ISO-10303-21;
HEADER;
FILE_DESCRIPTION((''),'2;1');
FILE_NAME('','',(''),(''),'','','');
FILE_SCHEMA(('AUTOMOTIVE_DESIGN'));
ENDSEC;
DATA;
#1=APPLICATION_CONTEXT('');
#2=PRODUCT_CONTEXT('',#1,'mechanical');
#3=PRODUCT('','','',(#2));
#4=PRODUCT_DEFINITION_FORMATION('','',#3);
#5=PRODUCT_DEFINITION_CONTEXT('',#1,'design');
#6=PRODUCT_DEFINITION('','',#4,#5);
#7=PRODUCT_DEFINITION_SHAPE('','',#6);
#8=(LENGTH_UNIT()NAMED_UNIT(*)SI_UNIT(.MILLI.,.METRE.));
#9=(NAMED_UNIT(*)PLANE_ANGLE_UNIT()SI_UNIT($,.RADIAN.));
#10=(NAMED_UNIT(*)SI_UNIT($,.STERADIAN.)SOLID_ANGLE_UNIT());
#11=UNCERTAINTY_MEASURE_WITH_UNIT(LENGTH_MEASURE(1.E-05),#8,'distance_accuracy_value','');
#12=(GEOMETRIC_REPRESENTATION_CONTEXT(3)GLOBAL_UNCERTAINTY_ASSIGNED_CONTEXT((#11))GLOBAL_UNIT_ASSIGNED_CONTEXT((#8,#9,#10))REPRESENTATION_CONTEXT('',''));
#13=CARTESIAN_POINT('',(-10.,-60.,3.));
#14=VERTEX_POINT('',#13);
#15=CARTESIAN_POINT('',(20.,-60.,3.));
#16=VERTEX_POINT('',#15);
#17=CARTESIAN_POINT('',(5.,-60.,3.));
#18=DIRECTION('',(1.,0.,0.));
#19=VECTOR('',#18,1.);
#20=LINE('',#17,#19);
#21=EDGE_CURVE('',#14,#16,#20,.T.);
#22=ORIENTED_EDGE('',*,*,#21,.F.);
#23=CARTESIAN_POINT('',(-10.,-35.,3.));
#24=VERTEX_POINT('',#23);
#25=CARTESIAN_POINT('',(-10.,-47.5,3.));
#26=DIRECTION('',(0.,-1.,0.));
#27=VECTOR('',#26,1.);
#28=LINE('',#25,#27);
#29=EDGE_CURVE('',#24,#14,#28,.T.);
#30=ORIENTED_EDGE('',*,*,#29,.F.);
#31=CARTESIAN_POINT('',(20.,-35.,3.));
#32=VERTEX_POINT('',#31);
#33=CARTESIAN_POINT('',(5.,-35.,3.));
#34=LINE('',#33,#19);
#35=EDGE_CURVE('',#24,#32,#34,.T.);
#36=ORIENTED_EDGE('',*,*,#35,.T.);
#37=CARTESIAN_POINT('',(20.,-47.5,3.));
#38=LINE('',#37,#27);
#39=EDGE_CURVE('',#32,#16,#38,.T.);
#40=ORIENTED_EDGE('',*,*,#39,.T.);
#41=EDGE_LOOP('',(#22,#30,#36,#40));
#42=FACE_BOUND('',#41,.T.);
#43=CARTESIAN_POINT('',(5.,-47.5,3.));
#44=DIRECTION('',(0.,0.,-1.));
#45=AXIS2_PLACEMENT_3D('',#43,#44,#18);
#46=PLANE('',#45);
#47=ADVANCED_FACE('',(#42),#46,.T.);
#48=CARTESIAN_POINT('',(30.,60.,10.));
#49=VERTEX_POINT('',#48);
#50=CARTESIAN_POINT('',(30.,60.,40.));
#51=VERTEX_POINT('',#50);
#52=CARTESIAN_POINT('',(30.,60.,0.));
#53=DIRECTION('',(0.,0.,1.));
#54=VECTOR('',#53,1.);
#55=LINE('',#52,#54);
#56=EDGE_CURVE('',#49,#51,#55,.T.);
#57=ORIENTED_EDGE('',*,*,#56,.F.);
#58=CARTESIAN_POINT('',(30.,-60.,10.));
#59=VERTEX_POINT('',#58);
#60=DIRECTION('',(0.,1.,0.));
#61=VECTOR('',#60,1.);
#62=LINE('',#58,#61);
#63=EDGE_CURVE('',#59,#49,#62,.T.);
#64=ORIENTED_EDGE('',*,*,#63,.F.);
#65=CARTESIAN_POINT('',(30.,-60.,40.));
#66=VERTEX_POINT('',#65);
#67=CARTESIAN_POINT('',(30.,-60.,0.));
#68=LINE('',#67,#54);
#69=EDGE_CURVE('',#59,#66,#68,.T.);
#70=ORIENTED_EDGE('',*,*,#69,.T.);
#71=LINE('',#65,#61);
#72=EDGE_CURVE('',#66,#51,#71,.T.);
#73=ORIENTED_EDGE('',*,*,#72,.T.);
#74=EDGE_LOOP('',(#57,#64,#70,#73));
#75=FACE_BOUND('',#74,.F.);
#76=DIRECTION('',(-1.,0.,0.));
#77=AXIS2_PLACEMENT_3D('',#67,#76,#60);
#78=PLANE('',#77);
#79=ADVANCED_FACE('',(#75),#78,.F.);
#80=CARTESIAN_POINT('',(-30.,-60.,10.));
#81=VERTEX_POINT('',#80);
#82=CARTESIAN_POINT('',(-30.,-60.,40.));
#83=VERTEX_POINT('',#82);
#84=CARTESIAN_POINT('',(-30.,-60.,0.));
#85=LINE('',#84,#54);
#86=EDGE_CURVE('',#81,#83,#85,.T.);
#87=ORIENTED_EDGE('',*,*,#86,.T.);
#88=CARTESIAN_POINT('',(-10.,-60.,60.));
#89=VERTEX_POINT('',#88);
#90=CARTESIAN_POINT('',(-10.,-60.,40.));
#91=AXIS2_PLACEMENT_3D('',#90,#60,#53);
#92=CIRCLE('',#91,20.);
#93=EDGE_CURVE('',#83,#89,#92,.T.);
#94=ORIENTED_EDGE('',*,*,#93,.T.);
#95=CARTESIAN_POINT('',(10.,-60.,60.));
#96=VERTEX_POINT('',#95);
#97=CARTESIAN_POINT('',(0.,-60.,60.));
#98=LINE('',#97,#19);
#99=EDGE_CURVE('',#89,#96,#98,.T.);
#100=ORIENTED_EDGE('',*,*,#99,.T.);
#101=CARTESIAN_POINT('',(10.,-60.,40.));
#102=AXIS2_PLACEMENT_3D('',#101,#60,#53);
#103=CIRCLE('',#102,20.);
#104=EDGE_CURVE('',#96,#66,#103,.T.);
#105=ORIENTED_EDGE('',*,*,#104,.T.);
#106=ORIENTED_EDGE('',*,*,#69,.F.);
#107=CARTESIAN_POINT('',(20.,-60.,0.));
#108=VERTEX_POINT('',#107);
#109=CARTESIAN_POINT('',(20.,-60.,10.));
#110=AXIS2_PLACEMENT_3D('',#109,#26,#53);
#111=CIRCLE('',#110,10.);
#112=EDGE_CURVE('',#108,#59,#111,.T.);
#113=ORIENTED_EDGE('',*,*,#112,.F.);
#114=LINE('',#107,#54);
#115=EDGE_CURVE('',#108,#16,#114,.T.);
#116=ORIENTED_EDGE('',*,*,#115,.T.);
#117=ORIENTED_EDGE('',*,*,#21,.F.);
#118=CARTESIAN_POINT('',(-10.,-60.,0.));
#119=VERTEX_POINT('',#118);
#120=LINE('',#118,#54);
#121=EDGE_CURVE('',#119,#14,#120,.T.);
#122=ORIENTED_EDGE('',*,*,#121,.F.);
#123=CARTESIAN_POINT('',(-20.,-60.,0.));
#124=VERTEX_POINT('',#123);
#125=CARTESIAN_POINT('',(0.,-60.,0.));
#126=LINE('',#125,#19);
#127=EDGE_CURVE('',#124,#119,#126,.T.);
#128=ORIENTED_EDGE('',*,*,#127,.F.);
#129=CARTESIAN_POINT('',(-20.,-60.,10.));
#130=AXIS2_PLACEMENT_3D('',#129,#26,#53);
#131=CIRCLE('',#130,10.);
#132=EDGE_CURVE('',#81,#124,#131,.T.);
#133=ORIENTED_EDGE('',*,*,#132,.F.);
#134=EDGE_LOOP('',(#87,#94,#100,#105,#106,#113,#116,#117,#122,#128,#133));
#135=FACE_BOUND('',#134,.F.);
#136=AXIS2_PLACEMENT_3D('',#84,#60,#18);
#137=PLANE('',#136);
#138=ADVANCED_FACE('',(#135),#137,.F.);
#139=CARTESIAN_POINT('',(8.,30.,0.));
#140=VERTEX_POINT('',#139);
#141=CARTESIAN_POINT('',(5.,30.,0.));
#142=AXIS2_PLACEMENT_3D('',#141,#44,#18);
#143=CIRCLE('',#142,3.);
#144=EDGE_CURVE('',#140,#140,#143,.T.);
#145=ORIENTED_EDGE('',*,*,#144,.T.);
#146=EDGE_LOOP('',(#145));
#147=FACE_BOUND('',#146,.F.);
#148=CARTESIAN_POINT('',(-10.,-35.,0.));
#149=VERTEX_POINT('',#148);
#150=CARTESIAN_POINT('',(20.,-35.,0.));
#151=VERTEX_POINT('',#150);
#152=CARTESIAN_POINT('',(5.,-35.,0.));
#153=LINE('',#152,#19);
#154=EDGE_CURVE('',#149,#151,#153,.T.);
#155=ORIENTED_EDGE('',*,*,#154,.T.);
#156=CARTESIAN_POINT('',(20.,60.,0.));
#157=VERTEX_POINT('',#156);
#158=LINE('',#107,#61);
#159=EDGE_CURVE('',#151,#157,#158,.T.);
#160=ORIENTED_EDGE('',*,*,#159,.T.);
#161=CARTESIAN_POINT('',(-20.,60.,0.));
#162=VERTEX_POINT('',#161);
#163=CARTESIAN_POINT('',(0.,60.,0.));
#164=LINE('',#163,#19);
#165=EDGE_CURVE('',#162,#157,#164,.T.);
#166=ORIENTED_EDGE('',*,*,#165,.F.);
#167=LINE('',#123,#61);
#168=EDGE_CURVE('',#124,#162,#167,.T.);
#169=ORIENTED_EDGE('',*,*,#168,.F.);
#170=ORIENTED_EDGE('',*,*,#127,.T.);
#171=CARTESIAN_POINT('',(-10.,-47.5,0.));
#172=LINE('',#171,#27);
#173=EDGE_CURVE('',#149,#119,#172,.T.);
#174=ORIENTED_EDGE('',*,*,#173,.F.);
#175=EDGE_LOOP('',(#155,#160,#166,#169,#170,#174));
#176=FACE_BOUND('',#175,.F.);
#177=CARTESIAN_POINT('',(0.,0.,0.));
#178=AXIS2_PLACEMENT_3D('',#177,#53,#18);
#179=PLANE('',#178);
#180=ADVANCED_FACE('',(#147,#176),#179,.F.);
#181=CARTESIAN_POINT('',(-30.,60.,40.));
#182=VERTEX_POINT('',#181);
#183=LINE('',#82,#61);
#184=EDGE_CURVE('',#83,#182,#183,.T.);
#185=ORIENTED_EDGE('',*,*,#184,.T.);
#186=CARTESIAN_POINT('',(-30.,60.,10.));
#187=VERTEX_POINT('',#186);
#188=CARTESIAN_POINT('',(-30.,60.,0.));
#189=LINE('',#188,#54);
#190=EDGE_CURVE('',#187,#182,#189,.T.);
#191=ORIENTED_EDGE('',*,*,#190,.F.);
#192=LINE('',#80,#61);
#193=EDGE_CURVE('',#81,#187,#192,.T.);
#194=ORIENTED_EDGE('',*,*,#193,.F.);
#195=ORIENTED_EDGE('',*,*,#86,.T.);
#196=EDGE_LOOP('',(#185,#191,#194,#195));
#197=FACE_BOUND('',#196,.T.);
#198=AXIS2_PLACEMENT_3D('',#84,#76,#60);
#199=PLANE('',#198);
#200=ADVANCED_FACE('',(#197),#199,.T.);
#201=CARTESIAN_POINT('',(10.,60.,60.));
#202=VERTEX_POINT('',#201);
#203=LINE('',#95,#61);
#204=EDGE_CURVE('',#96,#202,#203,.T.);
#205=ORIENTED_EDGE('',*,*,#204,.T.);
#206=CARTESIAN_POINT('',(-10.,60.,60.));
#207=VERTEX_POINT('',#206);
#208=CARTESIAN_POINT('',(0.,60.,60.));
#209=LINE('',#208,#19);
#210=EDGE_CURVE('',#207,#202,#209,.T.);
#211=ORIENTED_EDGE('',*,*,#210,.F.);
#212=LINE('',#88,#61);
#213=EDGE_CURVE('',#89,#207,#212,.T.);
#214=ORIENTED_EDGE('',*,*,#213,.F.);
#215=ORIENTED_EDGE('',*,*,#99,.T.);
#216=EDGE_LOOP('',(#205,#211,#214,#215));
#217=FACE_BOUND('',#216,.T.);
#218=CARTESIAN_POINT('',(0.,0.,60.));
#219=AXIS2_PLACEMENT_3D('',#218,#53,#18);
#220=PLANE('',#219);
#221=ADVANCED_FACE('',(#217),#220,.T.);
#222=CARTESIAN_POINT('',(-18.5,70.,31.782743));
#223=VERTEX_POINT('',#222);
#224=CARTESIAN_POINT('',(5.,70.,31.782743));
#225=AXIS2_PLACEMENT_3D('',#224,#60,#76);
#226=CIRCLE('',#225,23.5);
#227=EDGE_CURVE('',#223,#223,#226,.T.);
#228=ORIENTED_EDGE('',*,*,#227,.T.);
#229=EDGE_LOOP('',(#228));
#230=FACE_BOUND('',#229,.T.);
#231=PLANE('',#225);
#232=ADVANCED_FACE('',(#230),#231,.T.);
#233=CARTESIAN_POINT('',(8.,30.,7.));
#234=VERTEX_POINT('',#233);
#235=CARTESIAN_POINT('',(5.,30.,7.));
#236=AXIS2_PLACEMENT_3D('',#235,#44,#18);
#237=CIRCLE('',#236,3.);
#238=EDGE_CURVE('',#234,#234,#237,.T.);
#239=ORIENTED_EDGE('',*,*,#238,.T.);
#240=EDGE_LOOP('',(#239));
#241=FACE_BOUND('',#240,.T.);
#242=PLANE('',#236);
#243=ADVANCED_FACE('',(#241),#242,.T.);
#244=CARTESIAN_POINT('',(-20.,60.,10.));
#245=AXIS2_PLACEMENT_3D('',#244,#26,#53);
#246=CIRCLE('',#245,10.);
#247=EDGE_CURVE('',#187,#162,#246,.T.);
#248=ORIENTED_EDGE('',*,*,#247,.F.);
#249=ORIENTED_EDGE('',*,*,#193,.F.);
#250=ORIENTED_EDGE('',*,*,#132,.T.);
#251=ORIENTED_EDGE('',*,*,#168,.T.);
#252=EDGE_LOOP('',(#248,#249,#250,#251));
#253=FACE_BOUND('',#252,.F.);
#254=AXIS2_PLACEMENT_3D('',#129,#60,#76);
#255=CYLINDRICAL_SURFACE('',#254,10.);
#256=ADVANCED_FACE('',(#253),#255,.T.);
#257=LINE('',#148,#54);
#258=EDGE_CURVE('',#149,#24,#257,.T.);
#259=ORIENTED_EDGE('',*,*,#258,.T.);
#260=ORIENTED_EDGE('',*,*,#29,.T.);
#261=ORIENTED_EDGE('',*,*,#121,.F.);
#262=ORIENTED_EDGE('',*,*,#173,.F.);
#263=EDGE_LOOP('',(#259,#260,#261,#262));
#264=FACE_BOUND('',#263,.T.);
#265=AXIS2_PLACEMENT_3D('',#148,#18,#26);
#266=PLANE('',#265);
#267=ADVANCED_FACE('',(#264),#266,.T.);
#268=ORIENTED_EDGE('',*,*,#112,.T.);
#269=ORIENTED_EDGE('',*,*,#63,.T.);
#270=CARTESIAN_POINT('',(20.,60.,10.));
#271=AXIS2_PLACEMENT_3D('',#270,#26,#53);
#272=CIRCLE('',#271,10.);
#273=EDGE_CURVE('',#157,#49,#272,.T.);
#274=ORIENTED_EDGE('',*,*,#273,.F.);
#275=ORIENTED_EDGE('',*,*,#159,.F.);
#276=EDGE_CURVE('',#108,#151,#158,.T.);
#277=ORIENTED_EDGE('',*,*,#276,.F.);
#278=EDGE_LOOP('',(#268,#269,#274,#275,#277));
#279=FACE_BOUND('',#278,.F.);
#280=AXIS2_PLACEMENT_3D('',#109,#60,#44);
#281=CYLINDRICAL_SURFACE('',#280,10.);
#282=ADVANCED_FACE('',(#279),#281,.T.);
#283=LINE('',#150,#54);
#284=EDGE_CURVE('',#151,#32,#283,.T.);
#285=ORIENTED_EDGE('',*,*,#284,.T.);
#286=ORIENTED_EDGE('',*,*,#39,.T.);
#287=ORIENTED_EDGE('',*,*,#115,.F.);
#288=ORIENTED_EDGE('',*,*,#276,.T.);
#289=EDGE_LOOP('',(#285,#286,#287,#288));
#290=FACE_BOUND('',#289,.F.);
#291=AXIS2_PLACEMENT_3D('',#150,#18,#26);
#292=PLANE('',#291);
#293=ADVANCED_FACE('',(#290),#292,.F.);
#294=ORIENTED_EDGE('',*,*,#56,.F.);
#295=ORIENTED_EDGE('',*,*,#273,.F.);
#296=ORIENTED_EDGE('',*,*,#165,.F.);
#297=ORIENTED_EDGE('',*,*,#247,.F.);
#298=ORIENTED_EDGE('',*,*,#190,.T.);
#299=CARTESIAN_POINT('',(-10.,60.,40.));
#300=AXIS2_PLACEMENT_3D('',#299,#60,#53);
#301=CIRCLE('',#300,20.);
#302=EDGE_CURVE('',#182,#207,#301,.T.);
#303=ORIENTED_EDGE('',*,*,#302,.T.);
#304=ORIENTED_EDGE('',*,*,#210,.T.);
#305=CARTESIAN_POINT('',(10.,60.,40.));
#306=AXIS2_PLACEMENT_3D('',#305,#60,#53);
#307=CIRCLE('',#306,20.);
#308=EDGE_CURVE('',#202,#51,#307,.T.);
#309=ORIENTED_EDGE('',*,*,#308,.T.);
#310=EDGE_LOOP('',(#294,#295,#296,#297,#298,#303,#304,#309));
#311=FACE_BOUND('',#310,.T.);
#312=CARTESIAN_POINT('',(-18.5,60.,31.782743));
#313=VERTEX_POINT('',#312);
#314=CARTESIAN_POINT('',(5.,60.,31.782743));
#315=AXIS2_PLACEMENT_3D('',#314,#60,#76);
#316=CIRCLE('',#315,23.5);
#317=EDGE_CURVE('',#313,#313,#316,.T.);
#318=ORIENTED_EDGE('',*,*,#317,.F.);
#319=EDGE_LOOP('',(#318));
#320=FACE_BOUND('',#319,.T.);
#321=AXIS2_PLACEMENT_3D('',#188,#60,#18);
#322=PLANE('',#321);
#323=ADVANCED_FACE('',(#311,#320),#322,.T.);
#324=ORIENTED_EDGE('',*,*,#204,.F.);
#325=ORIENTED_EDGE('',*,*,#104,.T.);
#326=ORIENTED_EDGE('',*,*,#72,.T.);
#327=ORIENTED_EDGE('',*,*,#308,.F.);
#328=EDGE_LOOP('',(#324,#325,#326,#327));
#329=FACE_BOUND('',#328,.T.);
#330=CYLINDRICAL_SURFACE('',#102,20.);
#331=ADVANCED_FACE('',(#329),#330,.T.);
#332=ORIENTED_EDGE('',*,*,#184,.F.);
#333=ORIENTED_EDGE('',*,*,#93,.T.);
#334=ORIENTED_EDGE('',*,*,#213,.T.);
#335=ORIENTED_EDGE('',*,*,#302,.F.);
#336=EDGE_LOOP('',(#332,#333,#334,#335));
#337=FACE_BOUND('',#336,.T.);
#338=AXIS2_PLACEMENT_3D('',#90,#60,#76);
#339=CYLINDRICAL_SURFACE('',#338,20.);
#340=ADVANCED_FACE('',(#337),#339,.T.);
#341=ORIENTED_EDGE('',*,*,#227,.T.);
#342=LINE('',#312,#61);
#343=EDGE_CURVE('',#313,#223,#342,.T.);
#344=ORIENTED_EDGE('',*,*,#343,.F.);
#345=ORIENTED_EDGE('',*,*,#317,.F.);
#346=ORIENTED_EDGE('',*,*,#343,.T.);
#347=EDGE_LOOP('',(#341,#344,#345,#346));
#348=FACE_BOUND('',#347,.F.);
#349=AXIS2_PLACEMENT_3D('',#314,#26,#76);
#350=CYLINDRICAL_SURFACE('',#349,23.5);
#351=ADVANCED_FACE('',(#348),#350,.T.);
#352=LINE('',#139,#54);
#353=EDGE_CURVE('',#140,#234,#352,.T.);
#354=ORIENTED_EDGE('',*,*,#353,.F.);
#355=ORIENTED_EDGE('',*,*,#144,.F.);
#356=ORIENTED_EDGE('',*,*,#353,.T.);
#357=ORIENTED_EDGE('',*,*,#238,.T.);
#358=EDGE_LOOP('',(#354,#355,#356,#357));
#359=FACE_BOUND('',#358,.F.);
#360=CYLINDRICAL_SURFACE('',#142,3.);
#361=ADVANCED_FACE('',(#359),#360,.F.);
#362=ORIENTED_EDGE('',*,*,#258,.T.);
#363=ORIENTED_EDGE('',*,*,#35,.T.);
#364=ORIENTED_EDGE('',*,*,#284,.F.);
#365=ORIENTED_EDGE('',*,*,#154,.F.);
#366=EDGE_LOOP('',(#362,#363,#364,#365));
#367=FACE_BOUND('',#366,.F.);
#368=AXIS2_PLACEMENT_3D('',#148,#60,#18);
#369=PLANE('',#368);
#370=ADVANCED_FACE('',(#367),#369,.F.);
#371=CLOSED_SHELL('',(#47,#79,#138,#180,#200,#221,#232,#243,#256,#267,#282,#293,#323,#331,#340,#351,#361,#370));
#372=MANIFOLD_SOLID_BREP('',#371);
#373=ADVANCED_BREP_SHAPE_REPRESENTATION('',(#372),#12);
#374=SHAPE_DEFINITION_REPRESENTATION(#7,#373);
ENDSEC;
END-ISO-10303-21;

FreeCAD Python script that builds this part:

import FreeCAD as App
import Part
import Sketcher
from FreeCAD import Vector


def edges_at(feature, points):
    """Names of the edges that pass closest to the given points."""
    edges = feature.Shape.Edges
    near = lambda p: min(range(len(edges)), key=lambda i: edges[i].distToShape(Part.Vertex(*p))[0])
    return sorted({f"Edge{near(p) + 1}" for p in points})

doc = App.newDocument("Part")
params = doc.addObject("Spreadsheet::Sheet", "Params")
for row, (alias, value) in enumerate([
    ("sketch1_width", "60 mm"),
    ("sketch1_height", "120 mm"),
    ("pad1_length", "60 mm"),
    ("sketch2_diameter", "6 mm"),
    ("pocket1_length", "7 mm"),
    ("fillet_radius", "20 mm"),
    ("fillet2_radius", "10 mm"),
    ("sketch3_diameter", "47 mm"),
    ("pad2_length", "10 mm"),
    ("sketch4_width", "30 mm"),
    ("sketch4_height", "25 mm"),
    ("pocket2_length", "3 mm"),
], start=1):
    params.set(f"A{row}", alias)
    params.set(f"B{row}", "=" + value)
    params.setAlias(f"B{row}", alias)

body = doc.addObject("PartDesign::Body", "Body")

# Sketch on XY plane
sketch1 = body.newObject("Sketcher::SketchObject", "Sketch")
sketch1.AttachmentSupport = (doc.getObject("XY_Plane"), [""])
sketch1.MapMode = "FlatFace"
sketch1.addGeometry([
    Part.LineSegment(Vector(-30, 60, 0), Vector(-30, -60, 0)),
    Part.LineSegment(Vector(-30, -60, 0), Vector(30, -60, 0)),
    Part.LineSegment(Vector(30, -60, 0), Vector(30, 60, 0)),
    Part.LineSegment(Vector(30, 60, 0), Vector(-30, 60, 0)),
], False)
sketch1.addConstraint([
    Sketcher.Constraint("Coincident", 0, 2, 1, 1),
    Sketcher.Constraint("Coincident", 1, 2, 2, 1),
    Sketcher.Constraint("Coincident", 2, 2, 3, 1),
    Sketcher.Constraint("Coincident", 3, 2, 0, 1),
    Sketcher.Constraint("Vertical", 0),
    Sketcher.Constraint("Horizontal", 1),
    Sketcher.Constraint("Vertical", 2),
    Sketcher.Constraint("Horizontal", 3),
    Sketcher.Constraint("Symmetric", 0, 2, 2, 2, -1, 1),
    Sketcher.Constraint("DistanceX", 1, 1, 1, 2, 60.0),
    Sketcher.Constraint("DistanceY", 0, 2, 0, 1, 120.0),
])
sketch1.setExpression("Constraints[9]", "Params.sketch1_width")
sketch1.setExpression("Constraints[10]", "Params.sketch1_height")
pad1 = body.newObject("PartDesign::Pad", "Pad")
pad1.Profile = sketch1
pad1.setExpression("Length", "Params.pad1_length")

# Sketch on XY plane
sketch2 = body.newObject("Sketcher::SketchObject", "Sketch001")
sketch2.AttachmentSupport = (doc.getObject("XY_Plane"), [""])
sketch2.MapMode = "FlatFace"
sketch2.addGeometry(Part.Circle(Vector(5, 30, 0), Vector(0, 0, 1), 3), False)
sketch2.addConstraint([
    Sketcher.Constraint("Diameter", 0, 6.0),
    Sketcher.Constraint("DistanceX", -1, 1, 0, 3, 5.0),
    Sketcher.Constraint("DistanceY", -1, 1, 0, 3, 30.0),
])
sketch2.setExpression("Constraints[0]", "Params.sketch2_diameter")
pocket1 = body.newObject("PartDesign::Pocket", "Pocket")
pocket1.Profile = sketch2
pocket1.setExpression("Length", "Params.pocket1_length")
pocket1.Reversed = True
doc.recompute()

fillet = body.newObject("PartDesign::Fillet", "Fillet")
fillet.Base = (pocket1, edges_at(pocket1, [(30, 0, 60), (-30, 0, 60)]))
fillet.setExpression("Radius", "Params.fillet_radius")
doc.recompute()

fillet2 = body.newObject("PartDesign::Fillet", "Fillet001")
fillet2.Base = (fillet, edges_at(fillet, [(30, 0, 0), (-30, 0, 0)]))
fillet2.setExpression("Radius", "Params.fillet2_radius")

# Sketch on XZ plane
sketch3 = body.newObject("Sketcher::SketchObject", "Sketch002")
sketch3.AttachmentSupport = (doc.getObject("XZ_Plane"), [""])
sketch3.MapMode = "FlatFace"
sketch3.AttachmentOffset = App.Placement(Vector(0, 0, -60), App.Rotation())
sketch3.addGeometry(Part.Circle(Vector(5, 32, 0), Vector(0, 0, 1), 24), False)
sketch3.addConstraint([
    Sketcher.Constraint("Diameter", 0, 47.0),
    Sketcher.Constraint("DistanceX", -1, 1, 0, 3, 5.0),
    Sketcher.Constraint("DistanceY", -1, 1, 0, 3, 31.782743),
])
sketch3.setExpression("Constraints[0]", "Params.sketch3_diameter")
pad2 = body.newObject("PartDesign::Pad", "Pad001")
pad2.Profile = sketch3
pad2.setExpression("Length", "Params.pad2_length")
pad2.Reversed = True

# Sketch on XY plane
sketch4 = body.newObject("Sketcher::SketchObject", "Sketch003")
sketch4.AttachmentSupport = (doc.getObject("XY_Plane"), [""])
sketch4.MapMode = "FlatFace"
sketch4.addGeometry([
    Part.LineSegment(Vector(-10, -60, 0), Vector(-10, -35, 0)),
    Part.LineSegment(Vector(-10, -35, 0), Vector(20, -35, 0)),
    Part.LineSegment(Vector(20, -35, 0), Vector(20, -60, 0)),
    Part.LineSegment(Vector(20, -60, 0), Vector(-10, -60, 0)),
], False)
sketch4.addConstraint([
    Sketcher.Constraint("Coincident", 0, 2, 1, 1),
    Sketcher.Constraint("Coincident", 1, 2, 2, 1),
    Sketcher.Constraint("Coincident", 2, 2, 3, 1),
    Sketcher.Constraint("Coincident", 3, 2, 0, 1),
    Sketcher.Constraint("Vertical", 0),
    Sketcher.Constraint("Horizontal", 1),
    Sketcher.Constraint("Vertical", 2),
    Sketcher.Constraint("Horizontal", 3),
    Sketcher.Constraint("DistanceX", 1, 1, 1, 2, 30.0),
    Sketcher.Constraint("DistanceY", 0, 1, 0, 2, 25.0),
    Sketcher.Constraint("DistanceX", 0, 2, -1, 1, 10.0),
    Sketcher.Constraint("DistanceY", 0, 2, -1, 1, 35.0),
])
sketch4.setExpression("Constraints[8]", "Params.sketch4_width")
sketch4.setExpression("Constraints[9]", "Params.sketch4_height")
pocket2 = body.newObject("PartDesign::Pocket", "Pocket001")
pocket2.Profile = sketch4
pocket2.setExpression("Length", "Params.pocket2_length")
pocket2.Reversed = True

doc.recompute()
